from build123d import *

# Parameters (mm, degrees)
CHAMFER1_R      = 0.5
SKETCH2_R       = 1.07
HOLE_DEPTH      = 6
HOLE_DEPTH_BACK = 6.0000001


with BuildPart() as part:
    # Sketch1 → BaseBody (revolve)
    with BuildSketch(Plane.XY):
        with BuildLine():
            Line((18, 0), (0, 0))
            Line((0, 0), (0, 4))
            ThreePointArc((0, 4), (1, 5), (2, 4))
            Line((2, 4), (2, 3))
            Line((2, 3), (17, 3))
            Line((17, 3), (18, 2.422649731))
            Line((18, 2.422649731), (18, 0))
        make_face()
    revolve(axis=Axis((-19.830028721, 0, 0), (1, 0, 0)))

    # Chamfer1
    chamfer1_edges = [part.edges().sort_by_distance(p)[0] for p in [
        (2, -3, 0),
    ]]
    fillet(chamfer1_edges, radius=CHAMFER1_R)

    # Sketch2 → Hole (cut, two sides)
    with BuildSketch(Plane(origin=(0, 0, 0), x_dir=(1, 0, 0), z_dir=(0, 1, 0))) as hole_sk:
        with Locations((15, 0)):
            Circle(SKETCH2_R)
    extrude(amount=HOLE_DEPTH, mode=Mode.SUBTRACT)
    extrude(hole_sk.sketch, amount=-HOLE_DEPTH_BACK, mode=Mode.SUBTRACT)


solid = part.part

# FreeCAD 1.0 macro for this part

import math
import FreeCAD as App
import Part
import Sketcher
Q = App.Units.Quantity


def edges_at(feature, points):
    """Names of the edges that pass closest to the given points."""
    edges = feature.Shape.Edges
    near = lambda p: min(range(len(edges)), key=lambda i: edges[i].distToShape(Part.Vertex(*p))[0])
    return sorted({f"Edge{near(p) + 1}" for p in points})

doc = App.newDocument("Part")
body = doc.addObject("PartDesign::Body", "Body")

sketch1 = doc.addObject("Sketcher::SketchObject", "Sketch")
body.addObject(sketch1)
sketch1.AttachmentSupport = (doc.XY_Plane, [""])
sketch1.MapMode = "FlatFace"
sketch1.addGeometry([
    Part.LineSegment(App.Vector(0, 0, 0), App.Vector(18, 0, 0)),
    Part.LineSegment(App.Vector(18, 0, 0), App.Vector(18, 2.42265, 0)),
    Part.LineSegment(App.Vector(18, 2.42265, 0), App.Vector(17, 3, 0)),
    Part.LineSegment(App.Vector(17, 3, 0), App.Vector(2, 3, 0)),
    Part.LineSegment(App.Vector(2, 3, 0), App.Vector(2, 4, 0)),
    Part.ArcOfCircle(Part.Circle(App.Vector(1, 4, 0), App.Vector(0, 0, 1), 1), math.radians(0), math.radians(180)),
    Part.LineSegment(App.Vector(0, 4, 0), App.Vector(0, 0, 0)),
], False)
sketch1.addConstraint([
    Sketcher.Constraint("Coincident", 0, 2, 1, 1),
    Sketcher.Constraint("Coincident", 1, 2, 2, 1),
    Sketcher.Constraint("Coincident", 2, 2, 3, 1),
    Sketcher.Constraint("Coincident", 3, 2, 4, 1),
    Sketcher.Constraint("Tangent", 4, 2, 5, 1),
    Sketcher.Constraint("Tangent", 5, 2, 6, 1),
    Sketcher.Constraint("Coincident", 6, 2, 0, 1),
    Sketcher.Constraint("Horizontal", 0),
    Sketcher.Constraint("Vertical", 1),
    Sketcher.Constraint("Horizontal", 3),
    Sketcher.Constraint("Vertical", 4),
    Sketcher.Constraint("Vertical", 6),
    Sketcher.Constraint("Coincident", 6, 2, -1, 1),
    Sketcher.Constraint("Radius", 5, 1.0),
    Sketcher.Constraint("DistanceX", 0, 1, 0, 2, 18.0),
    Sketcher.Constraint("DistanceX", 3, 2, 3, 1, 15.0),
    Sketcher.Constraint("DistanceY", 4, 1, 4, 2, 1.0),
    Sketcher.Constraint("DistanceY", 6, 2, 6, 1, 4.0),
    Sketcher.Constraint("Angle", 2, Q("150 deg")),
])
revolution = doc.addObject("PartDesign::Revolution", "Revolution")
body.addObject(revolution)
revolution.Profile = sketch1
revolution.ReferenceAxis = (sketch1, ["H_Axis"])
revolution.Angle = 360
doc.recompute()

fillet = doc.addObject("PartDesign::Fillet", "Fillet")
body.addObject(fillet)
fillet.Base = (revolution, edges_at(revolution, [(2, -3, 0)]))
fillet.Radius = 0.5

sketch2 = doc.addObject("Sketcher::SketchObject", "Sketch001")
body.addObject(sketch2)
sketch2.AttachmentSupport = (doc.XZ_Plane, [""])
sketch2.MapMode = "FlatFace"
sketch2.addGeometry(Part.Circle(App.Vector(15, 0, 0), App.Vector(0, 0, 1), 1.07), False)
sketch2.addConstraint([
    Sketcher.Constraint("PointOnObject", 0, 3, -1),
    Sketcher.Constraint("Diameter", 0, 2.14),
    Sketcher.Constraint("DistanceX", -1, 1, 0, 3, 15.0),
])
pocket1 = doc.addObject("PartDesign::Pocket", "Pocket")
body.addObject(pocket1)
pocket1.Profile = sketch2
pocket1.Type = "ThroughAll"
pocket1.Midplane = True

doc.recompute()
